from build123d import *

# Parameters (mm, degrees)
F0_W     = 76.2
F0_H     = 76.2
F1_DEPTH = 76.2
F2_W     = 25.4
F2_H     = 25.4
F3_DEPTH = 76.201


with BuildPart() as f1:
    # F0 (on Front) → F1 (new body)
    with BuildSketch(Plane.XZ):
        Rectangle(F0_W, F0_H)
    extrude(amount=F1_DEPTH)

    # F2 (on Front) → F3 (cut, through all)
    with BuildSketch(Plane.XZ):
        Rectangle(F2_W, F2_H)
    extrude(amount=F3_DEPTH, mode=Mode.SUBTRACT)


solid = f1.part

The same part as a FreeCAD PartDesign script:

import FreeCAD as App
import Part
import Sketcher
from FreeCAD import Vector
Q = App.Units.Quantity

doc = App.newDocument("Part")
params = doc.addObject("Spreadsheet::Sheet", "Params")
for row, (alias, value) in enumerate([
    ("sketch1_width", "3 in"),
    ("pad1_length", "3 in"),
    ("sketch2_width", "1 in"),
], start=1):
    params.set(f"A{row}", alias)
    params.set(f"B{row}", "=" + value)
    params.setAlias(f"B{row}", alias)

body = doc.addObject("PartDesign::Body", "Body")

# Sketch on XZ plane
sketch1 = body.newObject("Sketcher::SketchObject", "Sketch")
sketch1.AttachmentSupport = (doc.getObject("XZ_Plane"), [""])
sketch1.MapMode = "FlatFace"
sketch1.addGeometry(Part.LineSegment(Vector(-38, 38, 0), Vector(-38, -38, 0)), False)
sketch1.addGeometry(Part.LineSegment(Vector(-38, -38, 0), Vector(38, -38, 0)), False)
sketch1.addGeometry(Part.LineSegment(Vector(38, -38, 0), Vector(38, 38, 0)), False)
sketch1.addGeometry(Part.LineSegment(Vector(38, 38, 0), Vector(-38, 38, 0)), False)
sketch1.addConstraint(Sketcher.Constraint("Coincident", 0, 2, 1, 1))
sketch1.addConstraint(Sketcher.Constraint("Coincident", 1, 2, 2, 1))
sketch1.addConstraint(Sketcher.Constraint("Coincident", 2, 2, 3, 1))
sketch1.addConstraint(Sketcher.Constraint("Coincident", 3, 2, 0, 1))
sketch1.addConstraint(Sketcher.Constraint("Vertical", 0))
sketch1.addConstraint(Sketcher.Constraint("Horizontal", 1))
sketch1.addConstraint(Sketcher.Constraint("Vertical", 2))
sketch1.addConstraint(Sketcher.Constraint("Horizontal", 3))
sketch1.addConstraint(Sketcher.Constraint("Symmetric", 0, 2, 2, 2, -1, 1))
sketch1.addConstraint(Sketcher.Constraint("Equal", 3, 0))
sketch1.addConstraint(Sketcher.Constraint("DistanceX", 1, 1, 1, 2, Q("3 in")))
sketch1.setExpression("Constraints[10]", "Params.sketch1_width")
pad1 = body.newObject("PartDesign::Pad", "Pad")
pad1.Profile = sketch1
pad1.setExpression("Length", "Params.pad1_length")

# Sketch on XZ plane
sketch2 = body.newObject("Sketcher::SketchObject", "Sketch001")
sketch2.AttachmentSupport = (doc.getObject("XZ_Plane"), [""])
sketch2.MapMode = "FlatFace"
sketch2.addGeometry(Part.LineSegment(Vector(-13, 13, 0), Vector(-13, -13, 0)), False)
sketch2.addGeometry(Part.LineSegment(Vector(-13, -13, 0), Vector(13, -13, 0)), False)
sketch2.addGeometry(Part.LineSegment(Vector(13, -13, 0), Vector(13, 13, 0)), False)
sketch2.addGeometry(Part.LineSegment(Vector(13, 13, 0), Vector(-13, 13, 0)), False)
sketch2.addConstraint(Sketcher.Constraint("Coincident", 0, 2, 1, 1))
sketch2.addConstraint(Sketcher.Constraint("Coincident", 1, 2, 2, 1))
sketch2.addConstraint(Sketcher.Constraint("Coincident", 2, 2, 3, 1))
sketch2.addConstraint(Sketcher.Constraint("Coincident", 3, 2, 0, 1))
sketch2.addConstraint(Sketcher.Constraint("Vertical", 0))
sketch2.addConstraint(Sketcher.Constraint("Horizontal", 1))
sketch2.addConstraint(Sketcher.Constraint("Vertical", 2))
sketch2.addConstraint(Sketcher.Constraint("Horizontal", 3))
sketch2.addConstraint(Sketcher.Constraint("Symmetric", 0, 2, 2, 2, -1, 1))
sketch2.addConstraint(Sketcher.Constraint("Equal", 3, 0))
sketch2.addConstraint(Sketcher.Constraint("DistanceX", 1, 1, 1, 2, Q("1 in")))
sketch2.setExpression("Constraints[10]", "Params.sketch2_width")
pocket1 = body.newObject("PartDesign::Pocket", "Pocket")
pocket1.Profile = sketch2
pocket1.Type = "ThroughAll"
pocket1.Reversed = True

doc.recompute()
